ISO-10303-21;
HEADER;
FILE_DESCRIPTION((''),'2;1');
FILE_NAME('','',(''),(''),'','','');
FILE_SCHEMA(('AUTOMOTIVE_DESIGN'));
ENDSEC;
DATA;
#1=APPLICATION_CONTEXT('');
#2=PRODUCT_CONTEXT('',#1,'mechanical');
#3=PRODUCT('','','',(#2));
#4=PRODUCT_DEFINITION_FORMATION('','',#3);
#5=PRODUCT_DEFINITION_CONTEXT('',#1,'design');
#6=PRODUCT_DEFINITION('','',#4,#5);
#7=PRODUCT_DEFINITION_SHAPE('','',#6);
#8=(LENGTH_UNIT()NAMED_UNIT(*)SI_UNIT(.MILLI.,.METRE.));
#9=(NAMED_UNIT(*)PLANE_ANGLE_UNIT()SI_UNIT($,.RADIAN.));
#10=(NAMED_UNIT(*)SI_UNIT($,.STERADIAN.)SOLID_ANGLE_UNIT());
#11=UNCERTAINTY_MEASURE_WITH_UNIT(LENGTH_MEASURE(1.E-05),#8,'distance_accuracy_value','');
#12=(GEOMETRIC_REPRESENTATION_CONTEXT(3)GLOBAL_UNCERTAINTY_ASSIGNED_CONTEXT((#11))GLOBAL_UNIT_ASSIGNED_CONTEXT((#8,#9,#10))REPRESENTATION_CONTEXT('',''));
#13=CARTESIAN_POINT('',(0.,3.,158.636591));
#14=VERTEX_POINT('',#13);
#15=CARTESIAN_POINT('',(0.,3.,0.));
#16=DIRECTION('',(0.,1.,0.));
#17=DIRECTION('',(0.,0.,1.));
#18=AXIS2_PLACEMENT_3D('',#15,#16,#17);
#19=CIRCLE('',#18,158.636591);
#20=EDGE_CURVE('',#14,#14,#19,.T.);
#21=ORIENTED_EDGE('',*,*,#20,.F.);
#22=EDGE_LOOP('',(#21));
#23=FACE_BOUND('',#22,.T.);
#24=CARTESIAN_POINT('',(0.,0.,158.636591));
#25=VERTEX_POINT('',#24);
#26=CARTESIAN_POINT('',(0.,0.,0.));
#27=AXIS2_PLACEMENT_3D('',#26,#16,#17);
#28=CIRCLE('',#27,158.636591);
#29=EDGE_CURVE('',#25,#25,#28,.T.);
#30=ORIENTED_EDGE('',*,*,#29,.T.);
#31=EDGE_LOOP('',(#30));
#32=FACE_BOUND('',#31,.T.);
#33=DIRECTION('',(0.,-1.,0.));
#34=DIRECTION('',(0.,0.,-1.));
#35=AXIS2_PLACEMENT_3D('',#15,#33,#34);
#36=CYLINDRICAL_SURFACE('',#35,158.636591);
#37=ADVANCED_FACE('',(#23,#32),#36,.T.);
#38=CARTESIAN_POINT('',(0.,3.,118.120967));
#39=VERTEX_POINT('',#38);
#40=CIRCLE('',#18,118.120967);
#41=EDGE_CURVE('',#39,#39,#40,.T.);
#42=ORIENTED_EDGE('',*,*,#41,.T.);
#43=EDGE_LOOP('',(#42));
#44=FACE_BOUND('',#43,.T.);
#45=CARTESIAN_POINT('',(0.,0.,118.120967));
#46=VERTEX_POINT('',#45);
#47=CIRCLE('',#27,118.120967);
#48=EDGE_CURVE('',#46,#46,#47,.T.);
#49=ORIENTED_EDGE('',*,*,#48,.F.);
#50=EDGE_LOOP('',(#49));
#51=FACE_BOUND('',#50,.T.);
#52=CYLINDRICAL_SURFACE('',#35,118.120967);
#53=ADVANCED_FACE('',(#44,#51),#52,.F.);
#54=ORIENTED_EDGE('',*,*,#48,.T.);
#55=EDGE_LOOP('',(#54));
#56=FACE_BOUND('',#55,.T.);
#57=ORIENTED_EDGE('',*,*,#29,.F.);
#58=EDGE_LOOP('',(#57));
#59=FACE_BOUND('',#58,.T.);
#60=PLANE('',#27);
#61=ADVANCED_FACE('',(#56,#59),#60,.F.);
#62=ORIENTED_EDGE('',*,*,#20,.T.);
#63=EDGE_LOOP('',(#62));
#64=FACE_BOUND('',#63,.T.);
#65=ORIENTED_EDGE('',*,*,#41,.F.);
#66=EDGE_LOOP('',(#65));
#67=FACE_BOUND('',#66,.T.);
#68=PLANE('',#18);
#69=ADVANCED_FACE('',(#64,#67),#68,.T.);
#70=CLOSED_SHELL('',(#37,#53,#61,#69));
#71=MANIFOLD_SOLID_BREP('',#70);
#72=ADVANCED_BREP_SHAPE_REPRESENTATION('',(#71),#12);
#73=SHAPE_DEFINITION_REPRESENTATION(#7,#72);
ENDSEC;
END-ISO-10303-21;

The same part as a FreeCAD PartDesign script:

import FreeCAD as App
import Part
import Sketcher

V = App.Vector
Q = App.Units.Quantity

doc = App.newDocument("Part")
params = doc.addObject("Spreadsheet::Sheet", "Params")
for row, (alias, value) in enumerate([
    ("pad1_length", "3 mm"),
], start=1):
    params.set(f"A{row}", alias)
    params.set(f"B{row}", "=" + value)
    params.setAlias(f"B{row}", alias)

body = doc.addObject("PartDesign::Body", "Body")

# Sketch on XZ plane
sketch1 = body.newObject("Sketcher::SketchObject", "Sketch")
sketch1.AttachmentSupport = (doc.getObject("XZ_Plane"), [""])
sketch1.MapMode = "FlatFace"
sketch1.addGeometry([
    Part.Circle(V(0, 0, 0), V(0, 0, 1), 159),
    Part.Circle(V(0, 0, 0), V(0, 0, 1), 118),
], False)
sketch1.addConstraint([
    Sketcher.Constraint("Coincident", 0, 3, -1, 1),
    Sketcher.Constraint("Coincident", 1, 3, -1, 1),
    Sketcher.Constraint("Diameter", 0, Q("317.273181 mm")),
    Sketcher.Constraint("Diameter", 1, Q("236.241934 mm")),
])
pad1 = body.newObject("PartDesign::Pad", "Pad")
pad1.Profile = sketch1
pad1.setExpression("Length", "Params.pad1_length")
pad1.Reversed = True

doc.recompute()
